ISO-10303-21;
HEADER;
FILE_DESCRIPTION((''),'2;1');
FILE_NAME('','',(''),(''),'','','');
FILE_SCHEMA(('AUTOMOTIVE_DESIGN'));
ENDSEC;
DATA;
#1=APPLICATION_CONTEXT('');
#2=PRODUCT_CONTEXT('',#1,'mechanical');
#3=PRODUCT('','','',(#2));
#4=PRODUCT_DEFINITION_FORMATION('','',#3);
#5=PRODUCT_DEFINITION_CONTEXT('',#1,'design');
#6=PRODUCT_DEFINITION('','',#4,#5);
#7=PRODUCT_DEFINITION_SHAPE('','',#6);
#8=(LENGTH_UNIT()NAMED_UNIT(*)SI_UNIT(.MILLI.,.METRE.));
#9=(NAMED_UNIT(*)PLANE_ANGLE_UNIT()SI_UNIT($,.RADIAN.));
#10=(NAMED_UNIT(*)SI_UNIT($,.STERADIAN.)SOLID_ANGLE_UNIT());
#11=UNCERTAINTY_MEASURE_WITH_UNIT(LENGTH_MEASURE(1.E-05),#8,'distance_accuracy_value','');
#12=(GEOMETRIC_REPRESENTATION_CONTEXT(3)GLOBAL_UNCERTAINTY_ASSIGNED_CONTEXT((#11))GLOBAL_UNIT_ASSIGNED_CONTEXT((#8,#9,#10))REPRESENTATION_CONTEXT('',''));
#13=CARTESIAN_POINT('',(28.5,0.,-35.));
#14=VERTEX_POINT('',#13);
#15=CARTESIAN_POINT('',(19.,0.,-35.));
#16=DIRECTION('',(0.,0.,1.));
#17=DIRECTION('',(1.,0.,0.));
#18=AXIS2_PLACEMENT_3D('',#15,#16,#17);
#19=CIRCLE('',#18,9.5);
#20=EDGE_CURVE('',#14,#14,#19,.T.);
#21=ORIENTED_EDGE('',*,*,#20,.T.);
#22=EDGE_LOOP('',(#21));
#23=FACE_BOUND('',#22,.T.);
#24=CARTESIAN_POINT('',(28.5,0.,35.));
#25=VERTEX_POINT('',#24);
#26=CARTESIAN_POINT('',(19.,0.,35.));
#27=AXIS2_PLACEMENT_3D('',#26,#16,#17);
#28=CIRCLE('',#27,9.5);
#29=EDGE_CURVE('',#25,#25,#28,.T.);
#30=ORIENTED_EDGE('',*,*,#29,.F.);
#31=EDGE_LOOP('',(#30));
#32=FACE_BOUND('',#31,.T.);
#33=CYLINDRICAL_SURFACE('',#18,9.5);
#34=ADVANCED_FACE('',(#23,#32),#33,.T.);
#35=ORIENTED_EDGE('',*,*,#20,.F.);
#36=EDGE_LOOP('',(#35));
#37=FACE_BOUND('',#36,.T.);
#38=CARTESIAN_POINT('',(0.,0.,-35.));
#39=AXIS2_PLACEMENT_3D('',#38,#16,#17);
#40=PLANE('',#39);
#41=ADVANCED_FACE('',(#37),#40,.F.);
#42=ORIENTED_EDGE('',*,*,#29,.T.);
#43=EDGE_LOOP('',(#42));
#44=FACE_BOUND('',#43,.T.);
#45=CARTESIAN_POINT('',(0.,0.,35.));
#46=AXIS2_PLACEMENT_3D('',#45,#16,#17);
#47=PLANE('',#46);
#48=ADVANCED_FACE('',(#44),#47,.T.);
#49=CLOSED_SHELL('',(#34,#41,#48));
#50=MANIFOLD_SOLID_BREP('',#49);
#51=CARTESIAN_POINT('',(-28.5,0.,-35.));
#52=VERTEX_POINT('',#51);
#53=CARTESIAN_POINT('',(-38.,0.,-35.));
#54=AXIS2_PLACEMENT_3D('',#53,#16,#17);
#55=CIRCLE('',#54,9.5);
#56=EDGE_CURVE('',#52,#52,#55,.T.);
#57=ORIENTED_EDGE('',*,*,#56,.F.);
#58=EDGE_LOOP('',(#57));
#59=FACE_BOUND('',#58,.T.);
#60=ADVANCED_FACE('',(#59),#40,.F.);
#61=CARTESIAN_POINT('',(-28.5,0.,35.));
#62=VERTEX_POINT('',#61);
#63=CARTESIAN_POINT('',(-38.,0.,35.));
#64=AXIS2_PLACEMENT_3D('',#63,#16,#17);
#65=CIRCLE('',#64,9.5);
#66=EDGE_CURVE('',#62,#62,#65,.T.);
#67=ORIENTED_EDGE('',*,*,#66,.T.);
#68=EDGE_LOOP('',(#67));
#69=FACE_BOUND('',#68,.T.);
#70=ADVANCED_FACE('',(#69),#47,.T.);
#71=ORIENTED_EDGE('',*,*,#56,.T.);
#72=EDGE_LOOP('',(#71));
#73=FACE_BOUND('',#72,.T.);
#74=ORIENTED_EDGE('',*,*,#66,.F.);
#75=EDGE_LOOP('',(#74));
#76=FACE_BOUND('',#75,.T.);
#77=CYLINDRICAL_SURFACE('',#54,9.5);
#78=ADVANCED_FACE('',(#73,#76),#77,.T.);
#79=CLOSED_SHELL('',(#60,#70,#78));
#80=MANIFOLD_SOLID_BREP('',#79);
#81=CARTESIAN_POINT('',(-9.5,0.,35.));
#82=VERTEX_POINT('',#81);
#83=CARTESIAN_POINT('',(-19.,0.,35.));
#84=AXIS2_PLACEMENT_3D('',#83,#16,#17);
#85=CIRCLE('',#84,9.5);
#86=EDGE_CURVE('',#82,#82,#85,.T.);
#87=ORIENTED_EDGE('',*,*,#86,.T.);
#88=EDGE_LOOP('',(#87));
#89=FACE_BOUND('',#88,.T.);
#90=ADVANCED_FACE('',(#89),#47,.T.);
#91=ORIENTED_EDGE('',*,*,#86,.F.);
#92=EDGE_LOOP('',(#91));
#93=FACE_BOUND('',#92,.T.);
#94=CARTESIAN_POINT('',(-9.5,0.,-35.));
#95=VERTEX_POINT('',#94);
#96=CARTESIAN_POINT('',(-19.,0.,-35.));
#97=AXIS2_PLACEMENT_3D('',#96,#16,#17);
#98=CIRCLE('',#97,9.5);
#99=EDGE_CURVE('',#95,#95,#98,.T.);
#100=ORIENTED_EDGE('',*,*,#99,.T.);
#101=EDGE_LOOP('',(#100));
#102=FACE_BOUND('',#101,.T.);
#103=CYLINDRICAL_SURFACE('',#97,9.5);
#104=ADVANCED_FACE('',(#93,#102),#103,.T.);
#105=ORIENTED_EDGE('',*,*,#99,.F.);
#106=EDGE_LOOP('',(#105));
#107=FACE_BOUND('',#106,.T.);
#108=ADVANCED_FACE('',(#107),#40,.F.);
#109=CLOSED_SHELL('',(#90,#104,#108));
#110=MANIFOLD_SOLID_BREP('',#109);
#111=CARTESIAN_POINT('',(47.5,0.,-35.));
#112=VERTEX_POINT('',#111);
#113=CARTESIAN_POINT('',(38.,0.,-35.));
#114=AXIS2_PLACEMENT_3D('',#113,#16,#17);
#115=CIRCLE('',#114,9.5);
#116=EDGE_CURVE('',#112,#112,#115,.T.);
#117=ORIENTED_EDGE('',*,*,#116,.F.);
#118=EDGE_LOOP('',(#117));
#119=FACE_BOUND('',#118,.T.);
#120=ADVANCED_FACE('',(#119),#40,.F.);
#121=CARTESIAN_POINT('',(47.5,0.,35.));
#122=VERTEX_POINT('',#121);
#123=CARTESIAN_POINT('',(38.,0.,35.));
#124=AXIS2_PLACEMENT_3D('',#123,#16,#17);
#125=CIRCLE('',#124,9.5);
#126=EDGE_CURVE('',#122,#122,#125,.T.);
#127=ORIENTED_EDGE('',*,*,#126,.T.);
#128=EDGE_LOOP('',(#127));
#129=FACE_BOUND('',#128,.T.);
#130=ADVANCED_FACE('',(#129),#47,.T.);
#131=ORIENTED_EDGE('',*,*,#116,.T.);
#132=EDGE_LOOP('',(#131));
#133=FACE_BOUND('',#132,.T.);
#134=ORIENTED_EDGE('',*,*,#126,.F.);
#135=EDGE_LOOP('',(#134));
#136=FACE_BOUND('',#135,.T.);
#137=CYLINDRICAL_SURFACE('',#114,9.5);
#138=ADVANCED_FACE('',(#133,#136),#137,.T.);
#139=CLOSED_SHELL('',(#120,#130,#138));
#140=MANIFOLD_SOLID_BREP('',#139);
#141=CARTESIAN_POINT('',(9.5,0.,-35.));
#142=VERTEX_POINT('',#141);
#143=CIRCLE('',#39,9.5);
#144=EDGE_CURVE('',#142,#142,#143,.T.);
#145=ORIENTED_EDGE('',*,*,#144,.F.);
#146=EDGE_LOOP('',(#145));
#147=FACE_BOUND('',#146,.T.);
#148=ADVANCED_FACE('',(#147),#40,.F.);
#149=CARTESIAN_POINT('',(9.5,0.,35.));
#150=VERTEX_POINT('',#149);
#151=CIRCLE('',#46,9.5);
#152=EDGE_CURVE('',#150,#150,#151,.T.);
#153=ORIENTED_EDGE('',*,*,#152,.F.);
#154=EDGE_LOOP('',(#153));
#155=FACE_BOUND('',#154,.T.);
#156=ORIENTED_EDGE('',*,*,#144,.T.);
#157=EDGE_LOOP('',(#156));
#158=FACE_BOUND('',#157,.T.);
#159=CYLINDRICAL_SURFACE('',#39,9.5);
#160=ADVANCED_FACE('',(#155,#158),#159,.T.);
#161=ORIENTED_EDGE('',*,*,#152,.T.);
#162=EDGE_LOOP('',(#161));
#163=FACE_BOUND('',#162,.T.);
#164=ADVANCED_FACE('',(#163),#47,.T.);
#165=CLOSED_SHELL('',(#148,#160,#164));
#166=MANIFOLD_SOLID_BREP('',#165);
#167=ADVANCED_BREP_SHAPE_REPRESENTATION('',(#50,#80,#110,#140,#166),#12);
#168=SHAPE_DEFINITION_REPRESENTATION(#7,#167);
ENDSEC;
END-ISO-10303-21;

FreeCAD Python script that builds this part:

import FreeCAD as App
import Part
import Sketcher
from FreeCAD import Vector

doc = App.newDocument("Part")
body = doc.addObject("PartDesign::Body", "Body")

# Sketch on XY plane
sketch1 = body.newObject("Sketcher::SketchObject", "Sketch")
sketch1.AttachmentSupport = (doc.getObject("XY_Plane"), [""])
sketch1.MapMode = "FlatFace"
sketch1.addGeometry(Part.Circle(Vector(0, 0, 0), Vector(0, 0, 1), 10), False)
sketch1.addConstraint(Sketcher.Constraint("Coincident", 0, 3, -1, 1))
sketch1.addConstraint(Sketcher.Constraint("Diameter", 0, 19.0))
pad1 = body.newObject("PartDesign::Pad", "Pad")
pad1.Profile = sketch1
pad1.Type = "TwoLengths"
pad1.Length = 35
pad1.Length2 = 35
body2 = doc.addObject("PartDesign::Body", "Body001")

# Sketch on XY plane
sketch2 = body2.newObject("Sketcher::SketchObject", "Sketch001")
sketch2.AttachmentSupport = (doc.getObject("XY_Plane001"), [""])
sketch2.MapMode = "FlatFace"
sketch2.addGeometry(Part.Circle(Vector(19, 0, 0), Vector(0, 0, 1), 10), False)
sketch2.addConstraint(Sketcher.Constraint("PointOnObject", 0, 3, -1))
sketch2.addConstraint(Sketcher.Constraint("Diameter", 0, 19.0))
sketch2.addConstraint(Sketcher.Constraint("DistanceX", -1, 1, 0, 3, 19.0))
pad2 = body2.newObject("PartDesign::Pad", "Pad001")
pad2.Profile = sketch2
pad2.Type = "TwoLengths"
pad2.Length = 35
pad2.Length2 = 35
body3 = doc.addObject("PartDesign::Body", "Body002")

# Sketch on XY plane
sketch3 = body3.newObject("Sketcher::SketchObject", "Sketch002")
sketch3.AttachmentSupport = (doc.getObject("XY_Plane002"), [""])
sketch3.MapMode = "FlatFace"
sketch3.addGeometry(Part.Circle(Vector(-19, 0, 0), Vector(0, 0, 1), 10), False)
sketch3.addConstraint(Sketcher.Constraint("PointOnObject", 0, 3, -1))
sketch3.addConstraint(Sketcher.Constraint("Diameter", 0, 19.0))
sketch3.addConstraint(Sketcher.Constraint("DistanceX", 0, 3, -1, 1, 19.0))
pad3 = body3.newObject("PartDesign::Pad", "Pad002")
pad3.Profile = sketch3
pad3.Type = "TwoLengths"
pad3.Length = 35
pad3.Length2 = 35
body4 = doc.addObject("PartDesign::Body", "Body003")

# Sketch on XY plane
sketch4 = body4.newObject("Sketcher::SketchObject", "Sketch003")
sketch4.AttachmentSupport = (doc.getObject("XY_Plane003"), [""])
sketch4.MapMode = "FlatFace"
sketch4.addGeometry(Part.Circle(Vector(-38, 0, 0), Vector(0, 0, 1), 10), False)
sketch4.addConstraint(Sketcher.Constraint("PointOnObject", 0, 3, -1))
sketch4.addConstraint(Sketcher.Constraint("Diameter", 0, 19.0))
sketch4.addConstraint(Sketcher.Constraint("DistanceX", 0, 3, -1, 1, 38.0))
pad4 = body4.newObject("PartDesign::Pad", "Pad003")
pad4.Profile = sketch4
pad4.Type = "TwoLengths"
pad4.Length = 35
pad4.Length2 = 35
body5 = doc.addObject("PartDesign::Body", "Body004")

# Sketch on XY plane
sketch5 = body5.newObject("Sketcher::SketchObject", "Sketch004")
sketch5.AttachmentSupport = (doc.getObject("XY_Plane004"), [""])
sketch5.MapMode = "FlatFace"
sketch5.addGeometry(Part.Circle(Vector(38, 0, 0), Vector(0, 0, 1), 10), False)
sketch5.addConstraint(Sketcher.Constraint("PointOnObject", 0, 3, -1))
sketch5.addConstraint(Sketcher.Constraint("Diameter", 0, 19.0))
sketch5.addConstraint(Sketcher.Constraint("DistanceX", -1, 1, 0, 3, 38.0))
pad5 = body5.newObject("PartDesign::Pad", "Pad004")
pad5.Profile = sketch5
pad5.Type = "TwoLengths"
pad5.Length = 35
pad5.Length2 = 35

doc.recompute()
